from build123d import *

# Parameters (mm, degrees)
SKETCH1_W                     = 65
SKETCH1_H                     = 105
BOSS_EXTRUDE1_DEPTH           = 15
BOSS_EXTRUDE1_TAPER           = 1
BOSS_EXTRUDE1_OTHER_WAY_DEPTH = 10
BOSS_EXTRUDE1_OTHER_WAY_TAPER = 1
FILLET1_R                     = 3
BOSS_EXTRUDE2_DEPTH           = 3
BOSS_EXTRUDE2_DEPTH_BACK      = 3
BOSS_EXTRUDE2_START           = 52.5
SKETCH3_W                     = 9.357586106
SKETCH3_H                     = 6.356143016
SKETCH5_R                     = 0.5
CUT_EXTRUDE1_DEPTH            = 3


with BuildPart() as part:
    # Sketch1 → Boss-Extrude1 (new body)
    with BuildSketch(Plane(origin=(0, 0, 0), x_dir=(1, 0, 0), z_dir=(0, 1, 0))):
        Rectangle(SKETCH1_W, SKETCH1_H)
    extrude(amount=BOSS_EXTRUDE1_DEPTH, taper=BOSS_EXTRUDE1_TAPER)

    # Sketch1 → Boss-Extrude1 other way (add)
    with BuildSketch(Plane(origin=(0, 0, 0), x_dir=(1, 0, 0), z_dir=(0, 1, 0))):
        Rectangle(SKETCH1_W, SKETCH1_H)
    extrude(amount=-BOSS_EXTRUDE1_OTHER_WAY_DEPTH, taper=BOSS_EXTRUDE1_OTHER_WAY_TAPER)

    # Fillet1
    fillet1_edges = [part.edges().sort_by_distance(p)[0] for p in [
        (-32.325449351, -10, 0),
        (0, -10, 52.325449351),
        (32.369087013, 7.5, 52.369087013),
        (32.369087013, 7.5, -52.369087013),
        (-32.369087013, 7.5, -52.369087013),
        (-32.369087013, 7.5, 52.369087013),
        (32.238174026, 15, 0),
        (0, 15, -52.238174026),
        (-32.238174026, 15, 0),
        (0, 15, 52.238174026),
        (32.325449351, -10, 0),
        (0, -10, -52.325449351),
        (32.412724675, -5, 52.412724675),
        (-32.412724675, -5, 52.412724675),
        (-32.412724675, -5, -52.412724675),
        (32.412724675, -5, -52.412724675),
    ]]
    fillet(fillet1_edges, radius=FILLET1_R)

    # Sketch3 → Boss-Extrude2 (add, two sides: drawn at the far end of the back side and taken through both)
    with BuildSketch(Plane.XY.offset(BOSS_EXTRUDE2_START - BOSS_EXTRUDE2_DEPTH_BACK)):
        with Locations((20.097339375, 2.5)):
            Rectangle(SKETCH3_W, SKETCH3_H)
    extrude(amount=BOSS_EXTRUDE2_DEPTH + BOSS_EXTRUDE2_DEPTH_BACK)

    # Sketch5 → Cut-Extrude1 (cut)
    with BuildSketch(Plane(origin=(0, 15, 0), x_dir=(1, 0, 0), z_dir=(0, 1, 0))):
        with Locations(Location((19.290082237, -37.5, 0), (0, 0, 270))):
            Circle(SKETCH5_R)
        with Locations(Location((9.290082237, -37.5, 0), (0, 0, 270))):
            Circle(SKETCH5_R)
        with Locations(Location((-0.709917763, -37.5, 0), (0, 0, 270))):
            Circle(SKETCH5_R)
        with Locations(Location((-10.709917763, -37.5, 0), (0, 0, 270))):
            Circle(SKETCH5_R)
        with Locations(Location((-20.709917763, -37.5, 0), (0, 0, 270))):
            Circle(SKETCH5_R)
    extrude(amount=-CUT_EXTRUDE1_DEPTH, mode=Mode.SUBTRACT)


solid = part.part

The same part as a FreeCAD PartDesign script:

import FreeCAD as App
import Part
import Sketcher

V = App.Vector


def add_polygon(sketch, points):
    """Adds a closed chain of lines whose ends are joined by coincident constraints."""
    first, n = sketch.GeometryCount, len(points)
    for a, b in zip(points, points[1:] + points[:1]):
        sketch.addGeometry(Part.LineSegment(App.Vector(*a, 0), App.Vector(*b, 0)), False)
    for i in range(n):
        sketch.addConstraint(Sketcher.Constraint("Coincident", first + i, 2, first + (i + 1) % n, 1))

doc = App.newDocument("Part")
body = doc.addObject("PartDesign::Body", "Body")

# Sketch on XZ plane
sketch1 = body.newObject("Sketcher::SketchObject", "Sketch")
sketch1.AttachmentSupport = (doc.getObject("XZ_Plane"), [""])
sketch1.MapMode = "FlatFace"
add_polygon(sketch1, [(-32, -52), (-32, 52), (32, 52), (32, -52)])  # lines 0-3
sketch1.addConstraint(Sketcher.Constraint("Vertical", 0))
sketch1.addConstraint(Sketcher.Constraint("Horizontal", 1))
sketch1.addConstraint(Sketcher.Constraint("Vertical", 2))
sketch1.addConstraint(Sketcher.Constraint("Horizontal", 3))
sketch1.addConstraint(Sketcher.Constraint("Symmetric", 0, 2, 2, 2, -1, 1))
sketch1.addConstraint(Sketcher.Constraint("DistanceX", 1, 1, 1, 2, 65.0))
sketch1.addConstraint(Sketcher.Constraint("DistanceY", 0, 1, 0, 2, 105.0))
pad1 = body.newObject("PartDesign::Pad", "Pad")
pad1.Profile = sketch1
pad1.Length = 15
pad1.Reversed = True
pad1.TaperAngle = -1

# Sketch on XZ plane
sketch2 = body.newObject("Sketcher::SketchObject", "Sketch001")
sketch2.AttachmentSupport = (doc.getObject("XZ_Plane"), [""])
sketch2.MapMode = "FlatFace"
add_polygon(sketch2, [(-32, -52), (-32, 52), (32, 52), (32, -52)])  # lines 0-3
sketch2.addConstraint(Sketcher.Constraint("Vertical", 0))
sketch2.addConstraint(Sketcher.Constraint("Horizontal", 1))
sketch2.addConstraint(Sketcher.Constraint("Vertical", 2))
sketch2.addConstraint(Sketcher.Constraint("Horizontal", 3))
sketch2.addConstraint(Sketcher.Constraint("Symmetric", 0, 2, 2, 2, -1, 1))
sketch2.addConstraint(Sketcher.Constraint("DistanceX", 1, 1, 1, 2, 65.0))
sketch2.addConstraint(Sketcher.Constraint("DistanceY", 0, 1, 0, 2, 105.0))
pad2 = body.newObject("PartDesign::Pad", "Pad001")
pad2.Profile = sketch2
pad2.Length = 10
pad2.TaperAngle = -1
doc.recompute()

fillet = body.newObject("PartDesign::Fillet", "Fillet")
fillet.Base = (pad2, ["Edge1"])
fillet.UseAllEdges = True
fillet.Radius = 3

# Sketch on XY plane
sketch3 = body.newObject("Sketcher::SketchObject", "Sketch002")
sketch3.AttachmentSupport = (doc.getObject("XY_Plane"), [""])
sketch3.MapMode = "FlatFace"
sketch3.AttachmentOffset = App.Placement(V(0, 0, 52.5), App.Rotation())
add_polygon(sketch3, [(15, 6), (15, -1), (25, -1), (25, 6)])  # lines 0-3
sketch3.addConstraint(Sketcher.Constraint("Vertical", 0))
sketch3.addConstraint(Sketcher.Constraint("Horizontal", 1))
sketch3.addConstraint(Sketcher.Constraint("Vertical", 2))
sketch3.addConstraint(Sketcher.Constraint("Horizontal", 3))
sketch3.addConstraint(Sketcher.Constraint("DistanceX", 1, 1, 1, 2, 9.357586))
sketch3.addConstraint(Sketcher.Constraint("DistanceY", 0, 2, 0, 1, 6.356143))
sketch3.addConstraint(Sketcher.Constraint("DistanceY", 0, 2, -1, 1, 0.678072))
sketch3.addConstraint(Sketcher.Constraint("DistanceX", -1, 1, 0, 2, 15.418546))
pad3 = body.newObject("PartDesign::Pad", "Pad002")
pad3.Profile = sketch3
pad3.Type = "TwoLengths"
pad3.Length = 3
pad3.Length2 = 3

# Sketch on XZ plane
sketch4 = body.newObject("Sketcher::SketchObject", "Sketch003")
sketch4.AttachmentSupport = (doc.getObject("XZ_Plane"), [""])
sketch4.MapMode = "FlatFace"
sketch4.AttachmentOffset = App.Placement(V(0, 0, -15), App.Rotation())
sketch4.addGeometry(Part.Circle(V(19.3, 37.5, 0), V(0, 0, 1), 0.5), False)
sketch4.addGeometry(Part.Circle(V(9.3, 37.5, 0), V(0, 0, 1), 0.5), False)
sketch4.addGeometry(Part.Circle(V(-0.7, 37.5, 0), V(0, 0, 1), 0.5), False)
sketch4.addGeometry(Part.Circle(V(-10.7, 37.5, 0), V(0, 0, 1), 0.5), False)
sketch4.addGeometry(Part.Circle(V(-20.7, 37.5, 0), V(0, 0, 1), 0.5), False)
sketch4.addConstraint(Sketcher.Constraint("Equal", 0, 1))
sketch4.addConstraint(Sketcher.Constraint("Equal", 1, 2))
sketch4.addConstraint(Sketcher.Constraint("Equal", 2, 3))
sketch4.addConstraint(Sketcher.Constraint("Equal", 3, 4))
sketch4.addConstraint(Sketcher.Constraint("Horizontal", 0, 3, 1, 3))
sketch4.addConstraint(Sketcher.Constraint("Horizontal", 1, 3, 2, 3))
sketch4.addConstraint(Sketcher.Constraint("Horizontal", 2, 3, 3, 3))
sketch4.addConstraint(Sketcher.Constraint("Horizontal", 3, 3, 4, 3))
sketch4.addConstraint(Sketcher.Constraint("Diameter", 0, 1.0))
sketch4.addConstraint(Sketcher.Constraint("DistanceX", 1, 3, 0, 3, 10.0))
sketch4.addConstraint(Sketcher.Constraint("DistanceX", 2, 3, 1, 3, 10.0))
sketch4.addConstraint(Sketcher.Constraint("DistanceX", 3, 3, 2, 3, 10.0))
sketch4.addConstraint(Sketcher.Constraint("DistanceX", 4, 3, 3, 3, 10.0))
sketch4.addConstraint(Sketcher.Constraint("DistanceY", -1, 1, 0, 3, 37.5))
sketch4.addConstraint(Sketcher.Constraint("DistanceX", -1, 1, 0, 3, 19.290082))
pocket1 = body.newObject("PartDesign::Pocket", "Pocket")
pocket1.Profile = sketch4
pocket1.Length = 3
pocket1.Reversed = True

doc.recompute()
